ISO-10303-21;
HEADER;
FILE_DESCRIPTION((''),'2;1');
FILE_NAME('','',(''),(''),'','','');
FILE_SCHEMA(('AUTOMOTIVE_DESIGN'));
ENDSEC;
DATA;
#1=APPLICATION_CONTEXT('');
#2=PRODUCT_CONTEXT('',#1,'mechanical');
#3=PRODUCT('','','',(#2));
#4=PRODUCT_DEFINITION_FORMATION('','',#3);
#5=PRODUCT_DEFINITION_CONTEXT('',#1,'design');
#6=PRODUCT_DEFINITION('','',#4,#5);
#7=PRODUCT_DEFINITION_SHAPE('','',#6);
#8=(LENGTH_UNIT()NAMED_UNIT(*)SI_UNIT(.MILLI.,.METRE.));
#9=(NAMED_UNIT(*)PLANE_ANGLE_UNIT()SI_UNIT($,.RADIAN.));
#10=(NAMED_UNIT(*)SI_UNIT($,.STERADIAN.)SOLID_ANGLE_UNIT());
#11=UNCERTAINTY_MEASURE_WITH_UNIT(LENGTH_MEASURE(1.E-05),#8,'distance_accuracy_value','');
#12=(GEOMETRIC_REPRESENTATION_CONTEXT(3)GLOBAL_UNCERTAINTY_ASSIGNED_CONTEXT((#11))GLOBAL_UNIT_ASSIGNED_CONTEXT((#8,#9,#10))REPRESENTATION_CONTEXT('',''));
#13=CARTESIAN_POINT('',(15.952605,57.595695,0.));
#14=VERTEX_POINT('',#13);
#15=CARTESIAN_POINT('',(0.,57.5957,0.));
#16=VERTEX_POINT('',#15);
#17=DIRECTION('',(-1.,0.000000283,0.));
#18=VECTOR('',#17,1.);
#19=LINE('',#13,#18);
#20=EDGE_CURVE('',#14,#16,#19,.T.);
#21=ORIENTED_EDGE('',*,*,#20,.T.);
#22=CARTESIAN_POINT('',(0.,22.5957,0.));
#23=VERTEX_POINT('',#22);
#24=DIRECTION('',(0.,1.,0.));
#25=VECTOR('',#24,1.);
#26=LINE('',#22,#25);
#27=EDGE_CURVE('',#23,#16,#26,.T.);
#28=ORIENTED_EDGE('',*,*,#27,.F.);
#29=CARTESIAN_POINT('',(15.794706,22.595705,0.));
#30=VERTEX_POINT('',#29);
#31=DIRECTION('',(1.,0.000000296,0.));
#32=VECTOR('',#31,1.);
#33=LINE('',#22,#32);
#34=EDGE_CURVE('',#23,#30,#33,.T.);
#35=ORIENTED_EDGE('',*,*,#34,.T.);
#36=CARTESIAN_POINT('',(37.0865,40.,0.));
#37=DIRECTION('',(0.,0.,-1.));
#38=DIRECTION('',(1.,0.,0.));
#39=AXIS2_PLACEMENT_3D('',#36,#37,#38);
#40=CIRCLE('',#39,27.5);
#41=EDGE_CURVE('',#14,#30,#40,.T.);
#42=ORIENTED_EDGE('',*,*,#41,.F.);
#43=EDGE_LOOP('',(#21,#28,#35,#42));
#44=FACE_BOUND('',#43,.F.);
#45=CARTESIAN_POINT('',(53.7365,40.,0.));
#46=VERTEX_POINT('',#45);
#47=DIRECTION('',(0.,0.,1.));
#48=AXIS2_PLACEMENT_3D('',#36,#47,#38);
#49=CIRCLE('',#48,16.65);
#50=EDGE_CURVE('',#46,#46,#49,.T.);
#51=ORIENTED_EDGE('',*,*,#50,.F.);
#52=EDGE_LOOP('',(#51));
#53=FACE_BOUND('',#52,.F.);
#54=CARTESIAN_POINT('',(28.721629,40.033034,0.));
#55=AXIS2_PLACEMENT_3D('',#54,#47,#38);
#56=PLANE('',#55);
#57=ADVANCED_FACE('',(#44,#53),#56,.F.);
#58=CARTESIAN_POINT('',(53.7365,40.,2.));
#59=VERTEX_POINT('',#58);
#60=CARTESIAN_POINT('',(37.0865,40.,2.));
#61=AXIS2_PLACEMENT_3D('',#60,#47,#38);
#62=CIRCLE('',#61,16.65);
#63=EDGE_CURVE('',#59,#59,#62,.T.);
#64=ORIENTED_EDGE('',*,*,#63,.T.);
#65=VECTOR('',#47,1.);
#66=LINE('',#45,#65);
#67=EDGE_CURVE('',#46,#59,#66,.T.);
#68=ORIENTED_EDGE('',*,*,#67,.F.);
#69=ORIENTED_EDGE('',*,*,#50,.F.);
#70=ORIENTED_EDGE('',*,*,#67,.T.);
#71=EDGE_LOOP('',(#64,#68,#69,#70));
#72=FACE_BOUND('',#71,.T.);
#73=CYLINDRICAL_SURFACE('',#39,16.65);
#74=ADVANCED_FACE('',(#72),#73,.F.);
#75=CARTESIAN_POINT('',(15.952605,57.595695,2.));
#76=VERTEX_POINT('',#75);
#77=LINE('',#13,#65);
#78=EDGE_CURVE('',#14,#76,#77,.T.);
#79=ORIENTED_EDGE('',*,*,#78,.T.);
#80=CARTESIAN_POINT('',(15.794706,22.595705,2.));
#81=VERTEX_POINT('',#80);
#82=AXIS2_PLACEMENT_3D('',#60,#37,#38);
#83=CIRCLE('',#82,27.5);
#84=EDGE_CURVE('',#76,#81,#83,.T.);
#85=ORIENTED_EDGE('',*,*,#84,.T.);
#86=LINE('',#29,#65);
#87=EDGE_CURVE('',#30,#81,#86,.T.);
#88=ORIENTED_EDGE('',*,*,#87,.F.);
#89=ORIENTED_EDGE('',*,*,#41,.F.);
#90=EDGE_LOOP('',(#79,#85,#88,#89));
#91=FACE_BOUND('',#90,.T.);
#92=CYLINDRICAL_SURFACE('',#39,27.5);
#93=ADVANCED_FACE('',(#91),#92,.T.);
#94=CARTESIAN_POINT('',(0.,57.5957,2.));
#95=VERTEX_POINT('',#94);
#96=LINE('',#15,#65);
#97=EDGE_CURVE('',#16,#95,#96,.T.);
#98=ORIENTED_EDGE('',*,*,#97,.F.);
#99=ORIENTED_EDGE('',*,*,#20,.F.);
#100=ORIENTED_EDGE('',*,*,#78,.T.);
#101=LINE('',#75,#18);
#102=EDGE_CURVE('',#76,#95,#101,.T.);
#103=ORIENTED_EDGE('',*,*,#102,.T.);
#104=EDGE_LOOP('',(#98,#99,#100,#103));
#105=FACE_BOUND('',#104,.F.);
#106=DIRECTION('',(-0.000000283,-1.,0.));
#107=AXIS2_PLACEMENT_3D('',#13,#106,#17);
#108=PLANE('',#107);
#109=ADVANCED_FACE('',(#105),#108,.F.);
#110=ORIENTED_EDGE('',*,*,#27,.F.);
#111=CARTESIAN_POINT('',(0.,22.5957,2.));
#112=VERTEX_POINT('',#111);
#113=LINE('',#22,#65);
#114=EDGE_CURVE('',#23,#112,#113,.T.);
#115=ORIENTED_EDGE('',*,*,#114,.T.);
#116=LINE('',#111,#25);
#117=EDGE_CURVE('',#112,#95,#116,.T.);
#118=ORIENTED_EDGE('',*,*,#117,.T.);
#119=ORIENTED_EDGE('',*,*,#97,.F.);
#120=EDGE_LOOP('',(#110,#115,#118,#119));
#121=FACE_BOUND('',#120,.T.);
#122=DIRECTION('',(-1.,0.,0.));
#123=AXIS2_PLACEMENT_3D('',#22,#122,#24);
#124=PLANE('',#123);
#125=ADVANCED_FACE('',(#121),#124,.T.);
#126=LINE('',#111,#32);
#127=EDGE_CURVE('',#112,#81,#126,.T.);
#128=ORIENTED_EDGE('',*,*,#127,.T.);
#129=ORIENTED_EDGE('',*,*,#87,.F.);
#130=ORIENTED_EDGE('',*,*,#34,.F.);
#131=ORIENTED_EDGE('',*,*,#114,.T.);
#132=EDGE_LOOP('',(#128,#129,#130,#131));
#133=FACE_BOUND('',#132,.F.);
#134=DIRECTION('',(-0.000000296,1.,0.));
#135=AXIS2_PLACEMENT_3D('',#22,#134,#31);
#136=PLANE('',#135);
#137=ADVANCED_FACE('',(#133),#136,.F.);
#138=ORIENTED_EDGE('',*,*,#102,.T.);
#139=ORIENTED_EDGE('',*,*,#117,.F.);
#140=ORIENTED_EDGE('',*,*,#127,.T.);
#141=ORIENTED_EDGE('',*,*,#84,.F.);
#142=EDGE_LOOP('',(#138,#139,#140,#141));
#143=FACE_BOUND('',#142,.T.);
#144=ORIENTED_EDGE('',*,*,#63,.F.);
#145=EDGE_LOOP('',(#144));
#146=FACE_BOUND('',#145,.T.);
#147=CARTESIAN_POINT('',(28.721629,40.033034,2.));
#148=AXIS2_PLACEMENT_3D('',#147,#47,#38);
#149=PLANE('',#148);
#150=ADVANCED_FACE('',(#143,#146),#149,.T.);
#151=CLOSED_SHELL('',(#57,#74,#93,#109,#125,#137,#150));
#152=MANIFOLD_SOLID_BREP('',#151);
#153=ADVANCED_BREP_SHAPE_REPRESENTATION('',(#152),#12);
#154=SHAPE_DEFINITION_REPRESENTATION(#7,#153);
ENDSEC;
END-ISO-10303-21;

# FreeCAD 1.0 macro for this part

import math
import FreeCAD as App
import Part
import Sketcher
from FreeCAD import Vector

doc = App.newDocument("Part")
body = doc.addObject("PartDesign::Body", "Body")

# Sketch on XY plane
sketch1 = doc.addObject("Sketcher::SketchObject", "Sketch")
body.addObject(sketch1)
sketch1.AttachmentSupport = (doc.XY_Plane, [""])
sketch1.MapMode = "FlatFace"
sketch1.addGeometry(Part.ArcOfCircle(Part.Circle(Vector(37, 40, 0), Vector(0, 0, 1), 28), math.radians(-141), math.radians(140)), False)
sketch1.addGeometry(Part.LineSegment(Vector(16, 58, 0), Vector(0, 58, 0)), False)
sketch1.addGeometry(Part.LineSegment(Vector(0, 58, 0), Vector(0, 23, 0)), False)
sketch1.addGeometry(Part.LineSegment(Vector(0, 23, 0), Vector(16, 23, 0)), False)
sketch1.addGeometry(Part.Circle(Vector(37, 40, 0), Vector(0, 0, 1), 17), False)
sketch1.addConstraint(Sketcher.Constraint("Coincident", 0, 2, 1, 1))
sketch1.addConstraint(Sketcher.Constraint("Coincident", 1, 2, 2, 1))
sketch1.addConstraint(Sketcher.Constraint("Coincident", 2, 2, 3, 1))
sketch1.addConstraint(Sketcher.Constraint("Coincident", 3, 2, 0, 1))
sketch1.addConstraint(Sketcher.Constraint("Horizontal", 1))
sketch1.addConstraint(Sketcher.Constraint("Vertical", 2))
sketch1.addConstraint(Sketcher.Constraint("Horizontal", 3))
sketch1.addConstraint(Sketcher.Constraint("Coincident", 4, 3, 0, 3))
sketch1.addConstraint(Sketcher.Constraint("PointOnObject", 1, 2, -2))
sketch1.addConstraint(Sketcher.Constraint("Diameter", 4, 33.3))
sketch1.addConstraint(Sketcher.Constraint("Radius", 0, 27.5))
sketch1.addConstraint(Sketcher.Constraint("DistanceY", 2, 2, 2, 1, 35.0))
sketch1.addConstraint(Sketcher.Constraint("DistanceY", -1, 1, 0, 3, 40.0))
sketch1.addConstraint(Sketcher.Constraint("DistanceX", 1, 2, 1, 1, 15.9526))
sketch1.addConstraint(Sketcher.Constraint("DistanceX", 3, 1, 3, 2, 15.7947))
pad1 = doc.addObject("PartDesign::Pad", "Pad")
body.addObject(pad1)
pad1.Profile = sketch1
pad1.Length = 2

doc.recompute()
